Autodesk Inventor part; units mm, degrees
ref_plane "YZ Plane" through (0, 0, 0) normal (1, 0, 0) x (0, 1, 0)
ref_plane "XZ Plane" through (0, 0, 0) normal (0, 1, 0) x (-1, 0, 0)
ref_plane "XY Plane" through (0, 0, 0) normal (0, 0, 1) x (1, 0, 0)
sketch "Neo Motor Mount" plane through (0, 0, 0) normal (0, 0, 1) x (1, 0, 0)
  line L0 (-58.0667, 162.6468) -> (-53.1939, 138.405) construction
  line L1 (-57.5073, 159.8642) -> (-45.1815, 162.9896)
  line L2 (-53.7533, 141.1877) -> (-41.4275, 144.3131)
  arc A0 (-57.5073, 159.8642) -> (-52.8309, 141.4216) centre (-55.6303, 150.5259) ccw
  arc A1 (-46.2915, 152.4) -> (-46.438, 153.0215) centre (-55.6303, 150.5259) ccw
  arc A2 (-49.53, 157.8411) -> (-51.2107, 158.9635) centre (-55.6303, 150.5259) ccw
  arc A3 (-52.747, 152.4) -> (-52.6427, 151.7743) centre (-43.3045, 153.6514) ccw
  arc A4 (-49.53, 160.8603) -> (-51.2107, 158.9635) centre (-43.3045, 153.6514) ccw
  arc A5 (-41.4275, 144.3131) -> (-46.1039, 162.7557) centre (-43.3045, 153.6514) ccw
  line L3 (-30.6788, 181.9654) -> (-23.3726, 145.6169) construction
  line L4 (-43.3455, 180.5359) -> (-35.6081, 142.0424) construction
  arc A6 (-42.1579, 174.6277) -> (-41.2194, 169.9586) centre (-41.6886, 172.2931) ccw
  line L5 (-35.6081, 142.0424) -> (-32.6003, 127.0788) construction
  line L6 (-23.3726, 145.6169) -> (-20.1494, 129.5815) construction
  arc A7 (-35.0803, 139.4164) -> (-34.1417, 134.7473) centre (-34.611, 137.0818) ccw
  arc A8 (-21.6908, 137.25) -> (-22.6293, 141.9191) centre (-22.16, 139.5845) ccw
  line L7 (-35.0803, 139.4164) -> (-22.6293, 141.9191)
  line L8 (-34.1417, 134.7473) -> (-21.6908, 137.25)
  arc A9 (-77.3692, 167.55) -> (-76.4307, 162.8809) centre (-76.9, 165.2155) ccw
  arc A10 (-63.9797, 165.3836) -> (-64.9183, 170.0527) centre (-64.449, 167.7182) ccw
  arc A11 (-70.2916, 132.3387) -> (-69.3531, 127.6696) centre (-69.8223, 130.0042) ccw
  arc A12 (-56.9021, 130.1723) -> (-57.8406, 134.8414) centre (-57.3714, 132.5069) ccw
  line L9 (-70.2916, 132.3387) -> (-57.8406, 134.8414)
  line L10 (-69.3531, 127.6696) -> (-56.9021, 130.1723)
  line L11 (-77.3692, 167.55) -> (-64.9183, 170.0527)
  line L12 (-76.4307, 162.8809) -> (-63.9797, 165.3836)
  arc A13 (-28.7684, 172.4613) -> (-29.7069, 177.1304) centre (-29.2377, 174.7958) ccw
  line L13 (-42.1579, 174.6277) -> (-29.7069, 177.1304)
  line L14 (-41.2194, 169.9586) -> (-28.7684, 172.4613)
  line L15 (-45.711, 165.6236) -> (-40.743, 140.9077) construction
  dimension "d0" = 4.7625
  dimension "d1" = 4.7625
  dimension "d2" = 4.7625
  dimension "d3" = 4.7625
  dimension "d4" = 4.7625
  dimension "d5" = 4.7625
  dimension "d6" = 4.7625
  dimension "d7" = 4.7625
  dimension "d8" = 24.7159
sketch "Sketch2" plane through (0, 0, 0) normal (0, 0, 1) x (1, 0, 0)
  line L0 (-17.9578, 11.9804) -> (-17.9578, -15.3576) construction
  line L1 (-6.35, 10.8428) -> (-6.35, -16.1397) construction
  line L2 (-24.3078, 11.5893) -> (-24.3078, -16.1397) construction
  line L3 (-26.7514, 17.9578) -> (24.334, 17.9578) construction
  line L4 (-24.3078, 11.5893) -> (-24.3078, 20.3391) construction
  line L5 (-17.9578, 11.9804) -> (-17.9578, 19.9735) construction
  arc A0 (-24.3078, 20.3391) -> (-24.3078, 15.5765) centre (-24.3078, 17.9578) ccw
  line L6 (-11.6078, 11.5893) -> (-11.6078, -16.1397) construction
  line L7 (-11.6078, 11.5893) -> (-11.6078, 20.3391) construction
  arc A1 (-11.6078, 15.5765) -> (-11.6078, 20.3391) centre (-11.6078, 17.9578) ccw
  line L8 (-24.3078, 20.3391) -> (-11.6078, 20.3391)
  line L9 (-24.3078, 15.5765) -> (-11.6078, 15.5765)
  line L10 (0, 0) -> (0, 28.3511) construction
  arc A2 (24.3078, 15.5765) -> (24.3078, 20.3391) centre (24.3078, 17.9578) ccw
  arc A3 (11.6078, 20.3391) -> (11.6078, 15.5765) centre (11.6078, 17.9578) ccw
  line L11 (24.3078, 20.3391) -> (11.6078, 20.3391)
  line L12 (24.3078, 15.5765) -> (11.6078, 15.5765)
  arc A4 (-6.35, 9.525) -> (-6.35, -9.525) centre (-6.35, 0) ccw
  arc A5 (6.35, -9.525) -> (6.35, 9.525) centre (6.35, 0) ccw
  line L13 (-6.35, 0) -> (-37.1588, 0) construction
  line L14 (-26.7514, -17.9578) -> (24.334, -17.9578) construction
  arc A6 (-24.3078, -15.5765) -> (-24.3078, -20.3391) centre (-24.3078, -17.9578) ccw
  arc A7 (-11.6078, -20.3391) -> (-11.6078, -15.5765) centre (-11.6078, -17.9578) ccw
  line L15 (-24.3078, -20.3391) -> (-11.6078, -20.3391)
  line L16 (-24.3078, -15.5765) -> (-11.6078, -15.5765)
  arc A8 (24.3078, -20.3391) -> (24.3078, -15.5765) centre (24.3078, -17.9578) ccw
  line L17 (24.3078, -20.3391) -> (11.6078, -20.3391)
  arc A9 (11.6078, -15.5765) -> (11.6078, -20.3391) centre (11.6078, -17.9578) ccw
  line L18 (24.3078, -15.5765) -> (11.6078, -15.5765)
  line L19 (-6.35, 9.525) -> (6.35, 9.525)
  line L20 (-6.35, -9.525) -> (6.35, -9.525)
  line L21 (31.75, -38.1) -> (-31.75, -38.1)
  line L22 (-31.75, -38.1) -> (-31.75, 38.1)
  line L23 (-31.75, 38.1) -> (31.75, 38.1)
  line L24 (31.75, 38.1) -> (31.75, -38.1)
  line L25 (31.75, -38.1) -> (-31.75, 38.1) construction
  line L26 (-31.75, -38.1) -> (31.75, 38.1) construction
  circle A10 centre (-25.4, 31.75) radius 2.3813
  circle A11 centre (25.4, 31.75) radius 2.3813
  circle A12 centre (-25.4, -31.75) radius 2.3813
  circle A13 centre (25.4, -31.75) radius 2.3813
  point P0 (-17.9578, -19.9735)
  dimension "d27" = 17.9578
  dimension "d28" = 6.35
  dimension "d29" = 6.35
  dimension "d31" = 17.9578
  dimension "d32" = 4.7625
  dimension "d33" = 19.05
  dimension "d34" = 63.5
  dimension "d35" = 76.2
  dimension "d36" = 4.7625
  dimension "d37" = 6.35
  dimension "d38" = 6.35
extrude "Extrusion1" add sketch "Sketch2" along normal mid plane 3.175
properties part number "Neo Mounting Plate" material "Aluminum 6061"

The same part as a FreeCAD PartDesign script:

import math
import FreeCAD as App
import Part
import Sketcher

V = App.Vector
Q = App.Units.Quantity


def add_polygon(sketch, points):
    """Adds a closed chain of lines whose ends are joined by coincident constraints."""
    first, n = sketch.GeometryCount, len(points)
    for a, b in zip(points, points[1:] + points[:1]):
        sketch.addGeometry(Part.LineSegment(App.Vector(*a, 0), App.Vector(*b, 0)), False)
    for i in range(n):
        sketch.addConstraint(Sketcher.Constraint("Coincident", first + i, 2, first + (i + 1) % n, 1))

doc = App.newDocument("Part")
body = doc.addObject("PartDesign::Body", "Body")

# Sketch on XY plane
sketch1 = body.newObject("Sketcher::SketchObject", "Sketch")
sketch1.AttachmentSupport = (doc.getObject("XY_Plane"), [""])
sketch1.MapMode = "FlatFace"
add_polygon(sketch1, [(-31.8, -38.1), (31.8, -38.1), (31.8, 38.1), (-31.8, 38.1)])  # lines 0-3
sketch1.addGeometry(Part.Circle(V(-25.4, -31.8, 0), V(0, 0, 1), 2.4), False)  # 4
sketch1.addGeometry(Part.ArcOfCircle(Part.Circle(V(-24.3, -18, 0), V(0, 0, 1), 2.4), math.radians(90), math.radians(270)), False)  # 5
sketch1.addGeometry(Part.LineSegment(V(-24.3, -15.6, 0), V(-11.6, -15.6, 0)), False)  # 6
sketch1.addGeometry(Part.ArcOfCircle(Part.Circle(V(-11.6, -18, 0), V(0, 0, 1), 2.4), math.radians(-90), math.radians(90)), False)  # 7
sketch1.addGeometry(Part.LineSegment(V(-11.6, -20.3, 0), V(-24.3, -20.3, 0)), False)  # 8
sketch1.addGeometry(Part.Circle(V(25.4, -31.8, 0), V(0, 0, 1), 2.4), False)  # 9
sketch1.addGeometry(Part.ArcOfCircle(Part.Circle(V(24.3, -18, 0), V(0, 0, 1), 2.4), math.radians(-90), math.radians(90)), False)  # 10
sketch1.addGeometry(Part.LineSegment(V(24.3, -20.3, 0), V(11.6, -20.3, 0)), False)  # 11
sketch1.addGeometry(Part.ArcOfCircle(Part.Circle(V(11.6, -18, 0), V(0, 0, 1), 2.4), math.radians(90), math.radians(270)), False)  # 12
sketch1.addGeometry(Part.LineSegment(V(11.6, -15.6, 0), V(24.3, -15.6, 0)), False)  # 13
sketch1.addGeometry(Part.ArcOfCircle(Part.Circle(V(-24.3, 18, 0), V(0, 0, 1), 2.4), math.radians(90), math.radians(270)), False)  # 14
sketch1.addGeometry(Part.LineSegment(V(-24.3, 20.3, 0), V(-11.6, 20.3, 0)), False)  # 15
sketch1.addGeometry(Part.ArcOfCircle(Part.Circle(V(-11.6, 18, 0), V(0, 0, 1), 2.4), math.radians(-90), math.radians(90)), False)  # 16
sketch1.addGeometry(Part.LineSegment(V(-11.6, 15.6, 0), V(-24.3, 15.6, 0)), False)  # 17
sketch1.addGeometry(Part.Circle(V(-25.4, 31.8, 0), V(0, 0, 1), 2.4), False)  # 18
sketch1.addGeometry(Part.ArcOfCircle(Part.Circle(V(-6.3, 0, 0), V(0, 0, 1), 9.5), math.radians(90), math.radians(270)), False)  # 19
sketch1.addGeometry(Part.LineSegment(V(-6.3, 9.5, 0), V(6.3, 9.5, 0)), False)  # 20
sketch1.addGeometry(Part.ArcOfCircle(Part.Circle(V(6.3, 0, 0), V(0, 0, 1), 9.5), math.radians(-90), math.radians(90)), False)  # 21
sketch1.addGeometry(Part.LineSegment(V(6.3, -9.5, 0), V(-6.3, -9.5, 0)), False)  # 22
sketch1.addGeometry(Part.ArcOfCircle(Part.Circle(V(24.3, 18, 0), V(0, 0, 1), 2.4), math.radians(-90), math.radians(90)), False)  # 23
sketch1.addGeometry(Part.LineSegment(V(24.3, 15.6, 0), V(11.6, 15.6, 0)), False)  # 24
sketch1.addGeometry(Part.ArcOfCircle(Part.Circle(V(11.6, 18, 0), V(0, 0, 1), 2.4), math.radians(90), math.radians(270)), False)  # 25
sketch1.addGeometry(Part.LineSegment(V(11.6, 20.3, 0), V(24.3, 20.3, 0)), False)  # 26
sketch1.addGeometry(Part.Circle(V(25.4, 31.8, 0), V(0, 0, 1), 2.4), False)  # 27
sketch1.addConstraint([
    Sketcher.Constraint("Tangent", 5, 1, 6, 1),
    Sketcher.Constraint("Tangent", 6, 2, 7, 2),
    Sketcher.Constraint("Tangent", 7, 1, 8, 1),
    Sketcher.Constraint("Tangent", 8, 2, 5, 2),
    Sketcher.Constraint("Tangent", 10, 1, 11, 1),
    Sketcher.Constraint("Tangent", 11, 2, 12, 2),
    Sketcher.Constraint("Tangent", 12, 1, 13, 1),
    Sketcher.Constraint("Tangent", 13, 2, 10, 2),
    Sketcher.Constraint("Tangent", 14, 1, 15, 1),
    Sketcher.Constraint("Tangent", 15, 2, 16, 2),
    Sketcher.Constraint("Tangent", 16, 1, 17, 1),
    Sketcher.Constraint("Tangent", 17, 2, 14, 2),
    Sketcher.Constraint("Tangent", 19, 1, 20, 1),
    Sketcher.Constraint("Tangent", 20, 2, 21, 2),
    Sketcher.Constraint("Tangent", 21, 1, 22, 1),
    Sketcher.Constraint("Tangent", 22, 2, 19, 2),
    Sketcher.Constraint("Tangent", 23, 1, 24, 1),
    Sketcher.Constraint("Tangent", 24, 2, 25, 2),
    Sketcher.Constraint("Tangent", 25, 1, 26, 1),
    Sketcher.Constraint("Tangent", 26, 2, 23, 2),
    Sketcher.Constraint("Horizontal", 0),
    Sketcher.Constraint("Vertical", 1),
    Sketcher.Constraint("Horizontal", 2),
    Sketcher.Constraint("Vertical", 3),
    Sketcher.Constraint("Horizontal", 6),
    Sketcher.Constraint("Horizontal", 8),
    Sketcher.Constraint("Horizontal", 11),
    Sketcher.Constraint("Horizontal", 13),
    Sketcher.Constraint("Horizontal", 15),
    Sketcher.Constraint("Horizontal", 17),
    Sketcher.Constraint("Horizontal", 20),
    Sketcher.Constraint("Horizontal", 22),
    Sketcher.Constraint("Horizontal", 24),
    Sketcher.Constraint("Horizontal", 26),
    Sketcher.Constraint("Equal", 4, 5),
    Sketcher.Constraint("Equal", 7, 9),
    Sketcher.Constraint("Equal", 9, 10),
    Sketcher.Constraint("Equal", 12, 14),
    Sketcher.Constraint("Equal", 16, 18),
    Sketcher.Constraint("Equal", 18, 23),
    Sketcher.Constraint("Equal", 25, 27),
    Sketcher.Constraint("Symmetric", 10, 3, 14, 3, -1, 1),
    Sketcher.Constraint("Symmetric", 9, 3, 18, 3, -1, 1),
    Sketcher.Constraint("Symmetric", 19, 3, 21, 3, -1, 1),
    Sketcher.Constraint("Symmetric", 5, 3, 23, 3, -1, 1),
    Sketcher.Constraint("Symmetric", 4, 3, 27, 3, -1, 1),
    Sketcher.Constraint("Symmetric", 0, 2, 2, 2, -1, 1),
    Sketcher.Constraint("Symmetric", 4, 3, 9, 3, -2),
    Sketcher.Constraint("Symmetric", 5, 3, 10, 3, -2),
    Sketcher.Constraint("Vertical", 7, 3, 16, 3),
    Sketcher.Constraint("Vertical", 12, 3, 25, 3),
    Sketcher.Constraint("Equal", 8, 11),
    Sketcher.Constraint("Equal", 17, 20),
    Sketcher.Constraint("DistanceY", 1, 1, 1, 2, Q("3 in")),
    Sketcher.Constraint("Diameter", 4, Q("0.1875 in")),
    Sketcher.Constraint("DistanceX", 0, 1, 0, 2, Q("2.5 in")),
    Sketcher.Constraint("Radius", 19, Q("0.375 in")),
    Sketcher.Constraint("DistanceX", 19, 3, -1, 1, Q("0.25 in")),
    Sketcher.Constraint("DistanceX", 21, 3, 27, 3, Q("0.75 in")),
    Sketcher.Constraint("DistanceY", 0, 2, 9, 3, Q("0.25 in")),
    Sketcher.Constraint("DistanceY", 5, 3, -1, 1, Q("0.707 in")),
    Sketcher.Constraint("DistanceX", 5, 3, 19, 3, Q("0.707 in")),
])
pad1 = body.newObject("PartDesign::Pad", "Pad")
pad1.Profile = sketch1
pad1.Length = Q("0.125 in")
pad1.Midplane = True

doc.recompute()
